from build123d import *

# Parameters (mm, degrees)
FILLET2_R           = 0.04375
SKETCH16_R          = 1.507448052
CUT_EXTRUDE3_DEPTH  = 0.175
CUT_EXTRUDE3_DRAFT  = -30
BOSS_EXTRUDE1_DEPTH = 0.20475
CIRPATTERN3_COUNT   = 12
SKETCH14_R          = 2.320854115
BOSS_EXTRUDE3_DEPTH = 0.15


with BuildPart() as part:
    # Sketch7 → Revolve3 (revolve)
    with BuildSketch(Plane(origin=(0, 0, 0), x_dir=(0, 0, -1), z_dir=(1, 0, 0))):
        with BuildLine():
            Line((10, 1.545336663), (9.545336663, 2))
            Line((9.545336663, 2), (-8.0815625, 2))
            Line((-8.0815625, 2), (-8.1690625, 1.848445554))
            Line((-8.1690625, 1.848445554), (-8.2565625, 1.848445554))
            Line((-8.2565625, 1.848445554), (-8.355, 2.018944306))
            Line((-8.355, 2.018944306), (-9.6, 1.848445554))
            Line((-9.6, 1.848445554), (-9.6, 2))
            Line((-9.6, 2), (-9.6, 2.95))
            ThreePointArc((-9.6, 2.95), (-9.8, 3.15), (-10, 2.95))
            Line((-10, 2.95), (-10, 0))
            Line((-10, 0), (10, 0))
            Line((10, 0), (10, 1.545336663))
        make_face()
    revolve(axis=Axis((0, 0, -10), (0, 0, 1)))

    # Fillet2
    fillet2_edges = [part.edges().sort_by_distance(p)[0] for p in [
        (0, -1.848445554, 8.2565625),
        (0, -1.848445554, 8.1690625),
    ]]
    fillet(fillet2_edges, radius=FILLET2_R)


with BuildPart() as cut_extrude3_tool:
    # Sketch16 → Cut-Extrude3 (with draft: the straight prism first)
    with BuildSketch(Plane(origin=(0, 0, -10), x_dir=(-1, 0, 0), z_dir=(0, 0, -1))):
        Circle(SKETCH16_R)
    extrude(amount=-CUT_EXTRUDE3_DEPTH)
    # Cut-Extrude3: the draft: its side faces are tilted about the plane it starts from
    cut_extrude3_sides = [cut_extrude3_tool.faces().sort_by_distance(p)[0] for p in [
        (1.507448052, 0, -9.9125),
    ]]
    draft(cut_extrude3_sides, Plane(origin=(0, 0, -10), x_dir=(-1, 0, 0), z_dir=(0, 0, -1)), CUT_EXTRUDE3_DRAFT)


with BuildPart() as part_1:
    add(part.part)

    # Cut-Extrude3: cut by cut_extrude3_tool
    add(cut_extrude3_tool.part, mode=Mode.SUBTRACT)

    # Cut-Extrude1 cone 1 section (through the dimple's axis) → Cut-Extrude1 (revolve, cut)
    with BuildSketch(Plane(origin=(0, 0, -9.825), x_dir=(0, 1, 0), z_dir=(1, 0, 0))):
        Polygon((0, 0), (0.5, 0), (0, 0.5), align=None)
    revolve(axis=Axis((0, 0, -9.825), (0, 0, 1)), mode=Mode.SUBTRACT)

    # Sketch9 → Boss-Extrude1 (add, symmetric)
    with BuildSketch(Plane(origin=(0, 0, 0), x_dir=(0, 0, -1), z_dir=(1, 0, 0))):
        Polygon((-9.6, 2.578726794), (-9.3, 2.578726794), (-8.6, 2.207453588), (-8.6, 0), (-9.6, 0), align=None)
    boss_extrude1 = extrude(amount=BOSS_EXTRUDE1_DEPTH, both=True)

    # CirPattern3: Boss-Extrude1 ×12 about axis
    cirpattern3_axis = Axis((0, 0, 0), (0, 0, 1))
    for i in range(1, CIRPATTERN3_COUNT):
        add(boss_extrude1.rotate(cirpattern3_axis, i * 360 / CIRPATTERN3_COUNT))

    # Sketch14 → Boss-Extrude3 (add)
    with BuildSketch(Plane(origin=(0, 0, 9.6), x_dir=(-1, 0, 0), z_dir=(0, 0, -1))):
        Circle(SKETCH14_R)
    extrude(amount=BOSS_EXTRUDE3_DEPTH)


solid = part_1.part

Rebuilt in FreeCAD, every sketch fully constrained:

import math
import FreeCAD as App
import Part
import Sketcher

V = App.Vector
Q = App.Units.Quantity


def edges_at(feature, points):
    """Names of the edges that pass closest to the given points."""
    edges = feature.Shape.Edges
    near = lambda p: min(range(len(edges)), key=lambda i: edges[i].distToShape(Part.Vertex(*p))[0])
    return sorted({f"Edge{near(p) + 1}" for p in points})


def faces_at(feature, points):
    """Names of the faces that lie closest to the given points."""
    faces = feature.Shape.Faces
    near = lambda p: min(range(len(faces)), key=lambda i: faces[i].distToShape(Part.Vertex(*p))[0])
    return sorted({f"Face{near(p) + 1}" for p in points})

doc = App.newDocument("Part")
params = doc.addObject("Spreadsheet::Sheet", "Params")
for row, (alias, value) in enumerate([
    ("sketch1_radius", "0.2 mm"),
    ("sketch1_height", "20 mm"),
    ("sketch1_width", "2.95 mm"),
    ("revolution_angle", "360 deg"),
    ("fillet_radius", "0.04375 mm"),
    ("pad1_length", "0.175 mm"),
    ("draft_angle", "30 deg"),
    ("sketch3_width", "0.5 mm"),
    ("groove_angle", "360 deg"),
    ("sketch4_height", "1 mm"),
    ("sketch4_height2", "0.3 mm"),
    ("pad2_length", "0.4095 mm"),
    ("pad3_length", "0.15 mm"),
], start=1):
    params.set(f"A{row}", alias)
    params.set(f"B{row}", "=" + value)
    params.setAlias(f"B{row}", alias)

body = doc.addObject("PartDesign::Body", "Body")

# Sketch on YZ plane
sketch1 = body.newObject("Sketcher::SketchObject", "Sketch")
sketch1.AttachmentSupport = (doc.getObject("YZ_Plane"), [""])
sketch1.MapMode = "FlatFace"
sketch1.addGeometry(Part.LineSegment(V(1.545337, -10, 0), V(2, -9.545337, 0)), False)
sketch1.addGeometry(Part.LineSegment(V(2, -9.545337, 0), V(2, 8.081563, 0)), False)
sketch1.addGeometry(Part.LineSegment(V(2, 8.081563, 0), V(1.848446, 8.169063, 0)), False)
sketch1.addGeometry(Part.LineSegment(V(1.848446, 8.169063, 0), V(1.848446, 8.256562, 0)), False)
sketch1.addGeometry(Part.LineSegment(V(1.848446, 8.256562, 0), V(2.018944, 8.355, 0)), False)
sketch1.addGeometry(Part.LineSegment(V(2.018944, 8.355, 0), V(1.848446, 9.6, 0)), False)
sketch1.addGeometry(Part.LineSegment(V(1.848446, 9.6, 0), V(2.95, 9.6, 0)), False)
sketch1.addGeometry(Part.ArcOfCircle(Part.Circle(V(2.95, 9.8, 0), V(0, 0, 1), 0.2), math.radians(-90), math.radians(90)), False)
sketch1.addGeometry(Part.LineSegment(V(2.95, 10, 0), V(0, 10, 0)), False)
sketch1.addGeometry(Part.LineSegment(V(0, 10, 0), V(0, -10, 0)), False)
sketch1.addGeometry(Part.LineSegment(V(0, -10, 0), V(1.545337, -10, 0)), False)
sketch1.addConstraint(Sketcher.Constraint("Coincident", 0, 2, 1, 1))
sketch1.addConstraint(Sketcher.Constraint("Coincident", 1, 2, 2, 1))
sketch1.addConstraint(Sketcher.Constraint("Coincident", 2, 2, 3, 1))
sketch1.addConstraint(Sketcher.Constraint("Coincident", 3, 2, 4, 1))
sketch1.addConstraint(Sketcher.Constraint("Coincident", 4, 2, 5, 1))
sketch1.addConstraint(Sketcher.Constraint("Coincident", 5, 2, 6, 1))
sketch1.addConstraint(Sketcher.Constraint("Tangent", 6, 2, 7, 1))
sketch1.addConstraint(Sketcher.Constraint("Tangent", 7, 2, 8, 1))
sketch1.addConstraint(Sketcher.Constraint("Coincident", 8, 2, 9, 1))
sketch1.addConstraint(Sketcher.Constraint("Coincident", 9, 2, 10, 1))
sketch1.addConstraint(Sketcher.Constraint("Coincident", 10, 2, 0, 1))
sketch1.addConstraint(Sketcher.Constraint("Vertical", 1))
sketch1.addConstraint(Sketcher.Constraint("Vertical", 3))
sketch1.addConstraint(Sketcher.Constraint("Horizontal", 6))
sketch1.addConstraint(Sketcher.Constraint("Horizontal", 8))
sketch1.addConstraint(Sketcher.Constraint("Vertical", 9))
sketch1.addConstraint(Sketcher.Constraint("Horizontal", 10))
sketch1.addConstraint(Sketcher.Constraint("Symmetric", 8, 2, 9, 2, -1, 1))
sketch1.addConstraint(Sketcher.Constraint("Vertical", 3, 2, 5, 2))
sketch1.addConstraint(Sketcher.Constraint("Radius", 7, 0.2))
sketch1.addConstraint(Sketcher.Constraint("DistanceY", 9, 2, 9, 1, 20.0))
sketch1.addConstraint(Sketcher.Constraint("Angle", 0, Q("45 deg")))
sketch1.addConstraint(Sketcher.Constraint("Angle", 2, Q("150 deg")))
sketch1.addConstraint(Sketcher.Constraint("Angle", 4, Q("30 deg")))
sketch1.addConstraint(Sketcher.Constraint("DistanceX", -1, 1, 0, 2, 2.0))
sketch1.addConstraint(Sketcher.Constraint("DistanceX", 8, 2, 8, 1, 2.95))
sketch1.addConstraint(Sketcher.Constraint("Distance", 2, 0.175))
sketch1.addConstraint(Sketcher.Constraint("DistanceY", 1, 1, 1, 2, 17.626899))
sketch1.addConstraint(Sketcher.Constraint("DistanceY", 3, 1, 3, 2, 0.0875))
sketch1.addConstraint(Sketcher.Constraint("DistanceY", -1, 1, 4, 2, 8.355))
sketch1.addConstraint(Sketcher.Constraint("DistanceX", 3, 2, 4, 2, 0.170499))
sketch1.setExpression("Constraints[19]", "Params.sketch1_radius")
sketch1.setExpression("Constraints[20]", "Params.sketch1_height")
sketch1.setExpression("Constraints[25]", "Params.sketch1_width")
revolution = body.newObject("PartDesign::Revolution", "Revolution")
revolution.Profile = sketch1
revolution.ReferenceAxis = (sketch1, ["V_Axis"])
revolution.setExpression("Angle", "Params.revolution_angle")
doc.recompute()

fillet = body.newObject("PartDesign::Fillet", "Fillet")
fillet.Base = (revolution, edges_at(revolution, [(0, -1.848, 8.257), (0, -1.848, 8.169)]))
fillet.setExpression("Radius", "Params.fillet_radius")
body2 = doc.addObject("PartDesign::Body", "Body001")

# Sketch on XY plane
sketch2 = body2.newObject("Sketcher::SketchObject", "Sketch001")
sketch2.AttachmentSupport = (doc.getObject("XY_Plane001"), [""])
sketch2.MapMode = "FlatFace"
sketch2.AttachmentOffset = App.Placement(V(0, 0, -10), App.Rotation())
sketch2.addGeometry(Part.Circle(V(0, 0, 0), V(0, 0, 1), 1.507448), False)
sketch2.addConstraint(Sketcher.Constraint("Coincident", 0, 3, -1, 1))
sketch2.addConstraint(Sketcher.Constraint("Diameter", 0, 3.014896))
pad1 = body2.newObject("PartDesign::Pad", "Pad")
pad1.Profile = sketch2
pad1.setExpression("Length", "Params.pad1_length")
doc.recompute()

datumplane = body2.newObject("PartDesign::Plane", "DatumPlane")
datumplane.AttachmentSupport = (doc.getObject("XY_Plane001"), [""])
datumplane.MapMode = "FlatFace"
datumplane.AttachmentOffset = App.Placement(V(0, 0, -10), App.Rotation())
draft = body2.newObject("PartDesign::Draft", "Draft")
draft.Base = (pad1, faces_at(pad1, [(1.507, 0, -9.912)]))
draft.NeutralPlane = (datumplane, [""])
draft.setExpression("Angle", "Params.draft_angle")
draft.Reversed = False
doc.recompute()

boolean = body.newObject("PartDesign::Boolean", "Boolean")
boolean.Type = "Cut"
boolean.addObjects([body2])

# Sketch on YZ plane
sketch3 = body.newObject("Sketcher::SketchObject", "Sketch002")
sketch3.AttachmentSupport = (doc.getObject("YZ_Plane"), [""])
sketch3.MapMode = "FlatFace"
sketch3.addGeometry(Part.LineSegment(V(0, -9.825, 0), V(0.5, -9.825, 0)), False)
sketch3.addGeometry(Part.LineSegment(V(0.5, -9.825, 0), V(0, -9.325, 0)), False)
sketch3.addGeometry(Part.LineSegment(V(0, -9.325, 0), V(0, -9.825, 0)), False)
sketch3.addConstraint(Sketcher.Constraint("Coincident", 0, 2, 1, 1))
sketch3.addConstraint(Sketcher.Constraint("Coincident", 1, 2, 2, 1))
sketch3.addConstraint(Sketcher.Constraint("Coincident", 2, 2, 0, 1))
sketch3.addConstraint(Sketcher.Constraint("Horizontal", 0))
sketch3.addConstraint(Sketcher.Constraint("Vertical", 2))
sketch3.addConstraint(Sketcher.Constraint("PointOnObject", 1, 2, -2))
sketch3.addConstraint(Sketcher.Constraint("Equal", 0, 2))
sketch3.addConstraint(Sketcher.Constraint("DistanceX", 0, 1, 0, 2, 0.5))
sketch3.addConstraint(Sketcher.Constraint("DistanceY", 0, 2, -1, 1, 9.825))
sketch3.setExpression("Constraints[7]", "Params.sketch3_width")
groove = body.newObject("PartDesign::Groove", "Groove")
groove.Profile = sketch3
groove.ReferenceAxis = (sketch3, ["V_Axis"])
groove.setExpression("Angle", "Params.groove_angle")

# Sketch on YZ plane
sketch4 = body.newObject("Sketcher::SketchObject", "Sketch003")
sketch4.AttachmentSupport = (doc.getObject("YZ_Plane"), [""])
sketch4.MapMode = "FlatFace"
sketch4.addGeometry(Part.LineSegment(V(2.578727, 9.3, 0), V(2.578727, 9.6, 0)), False)
sketch4.addGeometry(Part.LineSegment(V(2.578727, 9.6, 0), V(0, 9.6, 0)), False)
sketch4.addGeometry(Part.LineSegment(V(0, 9.6, 0), V(0, 8.6, 0)), False)
sketch4.addGeometry(Part.LineSegment(V(0, 8.6, 0), V(2.207454, 8.6, 0)), False)
sketch4.addGeometry(Part.LineSegment(V(2.207454, 8.6, 0), V(2.578727, 9.3, 0)), False)
sketch4.addConstraint(Sketcher.Constraint("Coincident", 0, 2, 1, 1))
sketch4.addConstraint(Sketcher.Constraint("Coincident", 1, 2, 2, 1))
sketch4.addConstraint(Sketcher.Constraint("Coincident", 2, 2, 3, 1))
sketch4.addConstraint(Sketcher.Constraint("Coincident", 3, 2, 4, 1))
sketch4.addConstraint(Sketcher.Constraint("Coincident", 4, 2, 0, 1))
sketch4.addConstraint(Sketcher.Constraint("Vertical", 0))
sketch4.addConstraint(Sketcher.Constraint("Horizontal", 1))
sketch4.addConstraint(Sketcher.Constraint("Vertical", 2))
sketch4.addConstraint(Sketcher.Constraint("Horizontal", 3))
sketch4.addConstraint(Sketcher.Constraint("PointOnObject", 1, 2, -2))
sketch4.addConstraint(Sketcher.Constraint("DistanceY", 2, 2, 2, 1, 1.0))
sketch4.addConstraint(Sketcher.Constraint("DistanceY", 0, 1, 0, 2, 0.3))
sketch4.addConstraint(Sketcher.Constraint("DistanceY", -1, 1, 0, 2, 9.6))
sketch4.addConstraint(Sketcher.Constraint("DistanceX", 1, 2, 1, 1, 2.578727))
sketch4.addConstraint(Sketcher.Constraint("DistanceX", 3, 1, 3, 2, 2.207454))
sketch4.setExpression("Constraints[10]", "Params.sketch4_height")
sketch4.setExpression("Constraints[11]", "Params.sketch4_height2")
pad2 = body.newObject("PartDesign::Pad", "Pad001")
pad2.Profile = sketch4
pad2.setExpression("Length", "Params.pad2_length")
pad2.Midplane = True
doc.recompute()

polarpattern = body.newObject("PartDesign::PolarPattern", "PolarPattern")
polarpattern.Originals = [pad2]
polarpattern.Axis = (doc.getObject("Z_Axis"), [""])
polarpattern.Angle = 360
polarpattern.Occurrences = 12
body.Tip = polarpattern

# Sketch on XY plane
sketch5 = body.newObject("Sketcher::SketchObject", "Sketch004")
sketch5.AttachmentSupport = (doc.getObject("XY_Plane"), [""])
sketch5.MapMode = "FlatFace"
sketch5.AttachmentOffset = App.Placement(V(0, 0, 9.6), App.Rotation())
sketch5.addGeometry(Part.Circle(V(0, 0, 0), V(0, 0, 1), 2.320854), False)
sketch5.addConstraint(Sketcher.Constraint("Coincident", 0, 3, -1, 1))
sketch5.addConstraint(Sketcher.Constraint("Diameter", 0, 4.641708))
pad3 = body.newObject("PartDesign::Pad", "Pad002")
pad3.Profile = sketch5
pad3.setExpression("Length", "Params.pad3_length")
pad3.Reversed = True

doc.recompute()
